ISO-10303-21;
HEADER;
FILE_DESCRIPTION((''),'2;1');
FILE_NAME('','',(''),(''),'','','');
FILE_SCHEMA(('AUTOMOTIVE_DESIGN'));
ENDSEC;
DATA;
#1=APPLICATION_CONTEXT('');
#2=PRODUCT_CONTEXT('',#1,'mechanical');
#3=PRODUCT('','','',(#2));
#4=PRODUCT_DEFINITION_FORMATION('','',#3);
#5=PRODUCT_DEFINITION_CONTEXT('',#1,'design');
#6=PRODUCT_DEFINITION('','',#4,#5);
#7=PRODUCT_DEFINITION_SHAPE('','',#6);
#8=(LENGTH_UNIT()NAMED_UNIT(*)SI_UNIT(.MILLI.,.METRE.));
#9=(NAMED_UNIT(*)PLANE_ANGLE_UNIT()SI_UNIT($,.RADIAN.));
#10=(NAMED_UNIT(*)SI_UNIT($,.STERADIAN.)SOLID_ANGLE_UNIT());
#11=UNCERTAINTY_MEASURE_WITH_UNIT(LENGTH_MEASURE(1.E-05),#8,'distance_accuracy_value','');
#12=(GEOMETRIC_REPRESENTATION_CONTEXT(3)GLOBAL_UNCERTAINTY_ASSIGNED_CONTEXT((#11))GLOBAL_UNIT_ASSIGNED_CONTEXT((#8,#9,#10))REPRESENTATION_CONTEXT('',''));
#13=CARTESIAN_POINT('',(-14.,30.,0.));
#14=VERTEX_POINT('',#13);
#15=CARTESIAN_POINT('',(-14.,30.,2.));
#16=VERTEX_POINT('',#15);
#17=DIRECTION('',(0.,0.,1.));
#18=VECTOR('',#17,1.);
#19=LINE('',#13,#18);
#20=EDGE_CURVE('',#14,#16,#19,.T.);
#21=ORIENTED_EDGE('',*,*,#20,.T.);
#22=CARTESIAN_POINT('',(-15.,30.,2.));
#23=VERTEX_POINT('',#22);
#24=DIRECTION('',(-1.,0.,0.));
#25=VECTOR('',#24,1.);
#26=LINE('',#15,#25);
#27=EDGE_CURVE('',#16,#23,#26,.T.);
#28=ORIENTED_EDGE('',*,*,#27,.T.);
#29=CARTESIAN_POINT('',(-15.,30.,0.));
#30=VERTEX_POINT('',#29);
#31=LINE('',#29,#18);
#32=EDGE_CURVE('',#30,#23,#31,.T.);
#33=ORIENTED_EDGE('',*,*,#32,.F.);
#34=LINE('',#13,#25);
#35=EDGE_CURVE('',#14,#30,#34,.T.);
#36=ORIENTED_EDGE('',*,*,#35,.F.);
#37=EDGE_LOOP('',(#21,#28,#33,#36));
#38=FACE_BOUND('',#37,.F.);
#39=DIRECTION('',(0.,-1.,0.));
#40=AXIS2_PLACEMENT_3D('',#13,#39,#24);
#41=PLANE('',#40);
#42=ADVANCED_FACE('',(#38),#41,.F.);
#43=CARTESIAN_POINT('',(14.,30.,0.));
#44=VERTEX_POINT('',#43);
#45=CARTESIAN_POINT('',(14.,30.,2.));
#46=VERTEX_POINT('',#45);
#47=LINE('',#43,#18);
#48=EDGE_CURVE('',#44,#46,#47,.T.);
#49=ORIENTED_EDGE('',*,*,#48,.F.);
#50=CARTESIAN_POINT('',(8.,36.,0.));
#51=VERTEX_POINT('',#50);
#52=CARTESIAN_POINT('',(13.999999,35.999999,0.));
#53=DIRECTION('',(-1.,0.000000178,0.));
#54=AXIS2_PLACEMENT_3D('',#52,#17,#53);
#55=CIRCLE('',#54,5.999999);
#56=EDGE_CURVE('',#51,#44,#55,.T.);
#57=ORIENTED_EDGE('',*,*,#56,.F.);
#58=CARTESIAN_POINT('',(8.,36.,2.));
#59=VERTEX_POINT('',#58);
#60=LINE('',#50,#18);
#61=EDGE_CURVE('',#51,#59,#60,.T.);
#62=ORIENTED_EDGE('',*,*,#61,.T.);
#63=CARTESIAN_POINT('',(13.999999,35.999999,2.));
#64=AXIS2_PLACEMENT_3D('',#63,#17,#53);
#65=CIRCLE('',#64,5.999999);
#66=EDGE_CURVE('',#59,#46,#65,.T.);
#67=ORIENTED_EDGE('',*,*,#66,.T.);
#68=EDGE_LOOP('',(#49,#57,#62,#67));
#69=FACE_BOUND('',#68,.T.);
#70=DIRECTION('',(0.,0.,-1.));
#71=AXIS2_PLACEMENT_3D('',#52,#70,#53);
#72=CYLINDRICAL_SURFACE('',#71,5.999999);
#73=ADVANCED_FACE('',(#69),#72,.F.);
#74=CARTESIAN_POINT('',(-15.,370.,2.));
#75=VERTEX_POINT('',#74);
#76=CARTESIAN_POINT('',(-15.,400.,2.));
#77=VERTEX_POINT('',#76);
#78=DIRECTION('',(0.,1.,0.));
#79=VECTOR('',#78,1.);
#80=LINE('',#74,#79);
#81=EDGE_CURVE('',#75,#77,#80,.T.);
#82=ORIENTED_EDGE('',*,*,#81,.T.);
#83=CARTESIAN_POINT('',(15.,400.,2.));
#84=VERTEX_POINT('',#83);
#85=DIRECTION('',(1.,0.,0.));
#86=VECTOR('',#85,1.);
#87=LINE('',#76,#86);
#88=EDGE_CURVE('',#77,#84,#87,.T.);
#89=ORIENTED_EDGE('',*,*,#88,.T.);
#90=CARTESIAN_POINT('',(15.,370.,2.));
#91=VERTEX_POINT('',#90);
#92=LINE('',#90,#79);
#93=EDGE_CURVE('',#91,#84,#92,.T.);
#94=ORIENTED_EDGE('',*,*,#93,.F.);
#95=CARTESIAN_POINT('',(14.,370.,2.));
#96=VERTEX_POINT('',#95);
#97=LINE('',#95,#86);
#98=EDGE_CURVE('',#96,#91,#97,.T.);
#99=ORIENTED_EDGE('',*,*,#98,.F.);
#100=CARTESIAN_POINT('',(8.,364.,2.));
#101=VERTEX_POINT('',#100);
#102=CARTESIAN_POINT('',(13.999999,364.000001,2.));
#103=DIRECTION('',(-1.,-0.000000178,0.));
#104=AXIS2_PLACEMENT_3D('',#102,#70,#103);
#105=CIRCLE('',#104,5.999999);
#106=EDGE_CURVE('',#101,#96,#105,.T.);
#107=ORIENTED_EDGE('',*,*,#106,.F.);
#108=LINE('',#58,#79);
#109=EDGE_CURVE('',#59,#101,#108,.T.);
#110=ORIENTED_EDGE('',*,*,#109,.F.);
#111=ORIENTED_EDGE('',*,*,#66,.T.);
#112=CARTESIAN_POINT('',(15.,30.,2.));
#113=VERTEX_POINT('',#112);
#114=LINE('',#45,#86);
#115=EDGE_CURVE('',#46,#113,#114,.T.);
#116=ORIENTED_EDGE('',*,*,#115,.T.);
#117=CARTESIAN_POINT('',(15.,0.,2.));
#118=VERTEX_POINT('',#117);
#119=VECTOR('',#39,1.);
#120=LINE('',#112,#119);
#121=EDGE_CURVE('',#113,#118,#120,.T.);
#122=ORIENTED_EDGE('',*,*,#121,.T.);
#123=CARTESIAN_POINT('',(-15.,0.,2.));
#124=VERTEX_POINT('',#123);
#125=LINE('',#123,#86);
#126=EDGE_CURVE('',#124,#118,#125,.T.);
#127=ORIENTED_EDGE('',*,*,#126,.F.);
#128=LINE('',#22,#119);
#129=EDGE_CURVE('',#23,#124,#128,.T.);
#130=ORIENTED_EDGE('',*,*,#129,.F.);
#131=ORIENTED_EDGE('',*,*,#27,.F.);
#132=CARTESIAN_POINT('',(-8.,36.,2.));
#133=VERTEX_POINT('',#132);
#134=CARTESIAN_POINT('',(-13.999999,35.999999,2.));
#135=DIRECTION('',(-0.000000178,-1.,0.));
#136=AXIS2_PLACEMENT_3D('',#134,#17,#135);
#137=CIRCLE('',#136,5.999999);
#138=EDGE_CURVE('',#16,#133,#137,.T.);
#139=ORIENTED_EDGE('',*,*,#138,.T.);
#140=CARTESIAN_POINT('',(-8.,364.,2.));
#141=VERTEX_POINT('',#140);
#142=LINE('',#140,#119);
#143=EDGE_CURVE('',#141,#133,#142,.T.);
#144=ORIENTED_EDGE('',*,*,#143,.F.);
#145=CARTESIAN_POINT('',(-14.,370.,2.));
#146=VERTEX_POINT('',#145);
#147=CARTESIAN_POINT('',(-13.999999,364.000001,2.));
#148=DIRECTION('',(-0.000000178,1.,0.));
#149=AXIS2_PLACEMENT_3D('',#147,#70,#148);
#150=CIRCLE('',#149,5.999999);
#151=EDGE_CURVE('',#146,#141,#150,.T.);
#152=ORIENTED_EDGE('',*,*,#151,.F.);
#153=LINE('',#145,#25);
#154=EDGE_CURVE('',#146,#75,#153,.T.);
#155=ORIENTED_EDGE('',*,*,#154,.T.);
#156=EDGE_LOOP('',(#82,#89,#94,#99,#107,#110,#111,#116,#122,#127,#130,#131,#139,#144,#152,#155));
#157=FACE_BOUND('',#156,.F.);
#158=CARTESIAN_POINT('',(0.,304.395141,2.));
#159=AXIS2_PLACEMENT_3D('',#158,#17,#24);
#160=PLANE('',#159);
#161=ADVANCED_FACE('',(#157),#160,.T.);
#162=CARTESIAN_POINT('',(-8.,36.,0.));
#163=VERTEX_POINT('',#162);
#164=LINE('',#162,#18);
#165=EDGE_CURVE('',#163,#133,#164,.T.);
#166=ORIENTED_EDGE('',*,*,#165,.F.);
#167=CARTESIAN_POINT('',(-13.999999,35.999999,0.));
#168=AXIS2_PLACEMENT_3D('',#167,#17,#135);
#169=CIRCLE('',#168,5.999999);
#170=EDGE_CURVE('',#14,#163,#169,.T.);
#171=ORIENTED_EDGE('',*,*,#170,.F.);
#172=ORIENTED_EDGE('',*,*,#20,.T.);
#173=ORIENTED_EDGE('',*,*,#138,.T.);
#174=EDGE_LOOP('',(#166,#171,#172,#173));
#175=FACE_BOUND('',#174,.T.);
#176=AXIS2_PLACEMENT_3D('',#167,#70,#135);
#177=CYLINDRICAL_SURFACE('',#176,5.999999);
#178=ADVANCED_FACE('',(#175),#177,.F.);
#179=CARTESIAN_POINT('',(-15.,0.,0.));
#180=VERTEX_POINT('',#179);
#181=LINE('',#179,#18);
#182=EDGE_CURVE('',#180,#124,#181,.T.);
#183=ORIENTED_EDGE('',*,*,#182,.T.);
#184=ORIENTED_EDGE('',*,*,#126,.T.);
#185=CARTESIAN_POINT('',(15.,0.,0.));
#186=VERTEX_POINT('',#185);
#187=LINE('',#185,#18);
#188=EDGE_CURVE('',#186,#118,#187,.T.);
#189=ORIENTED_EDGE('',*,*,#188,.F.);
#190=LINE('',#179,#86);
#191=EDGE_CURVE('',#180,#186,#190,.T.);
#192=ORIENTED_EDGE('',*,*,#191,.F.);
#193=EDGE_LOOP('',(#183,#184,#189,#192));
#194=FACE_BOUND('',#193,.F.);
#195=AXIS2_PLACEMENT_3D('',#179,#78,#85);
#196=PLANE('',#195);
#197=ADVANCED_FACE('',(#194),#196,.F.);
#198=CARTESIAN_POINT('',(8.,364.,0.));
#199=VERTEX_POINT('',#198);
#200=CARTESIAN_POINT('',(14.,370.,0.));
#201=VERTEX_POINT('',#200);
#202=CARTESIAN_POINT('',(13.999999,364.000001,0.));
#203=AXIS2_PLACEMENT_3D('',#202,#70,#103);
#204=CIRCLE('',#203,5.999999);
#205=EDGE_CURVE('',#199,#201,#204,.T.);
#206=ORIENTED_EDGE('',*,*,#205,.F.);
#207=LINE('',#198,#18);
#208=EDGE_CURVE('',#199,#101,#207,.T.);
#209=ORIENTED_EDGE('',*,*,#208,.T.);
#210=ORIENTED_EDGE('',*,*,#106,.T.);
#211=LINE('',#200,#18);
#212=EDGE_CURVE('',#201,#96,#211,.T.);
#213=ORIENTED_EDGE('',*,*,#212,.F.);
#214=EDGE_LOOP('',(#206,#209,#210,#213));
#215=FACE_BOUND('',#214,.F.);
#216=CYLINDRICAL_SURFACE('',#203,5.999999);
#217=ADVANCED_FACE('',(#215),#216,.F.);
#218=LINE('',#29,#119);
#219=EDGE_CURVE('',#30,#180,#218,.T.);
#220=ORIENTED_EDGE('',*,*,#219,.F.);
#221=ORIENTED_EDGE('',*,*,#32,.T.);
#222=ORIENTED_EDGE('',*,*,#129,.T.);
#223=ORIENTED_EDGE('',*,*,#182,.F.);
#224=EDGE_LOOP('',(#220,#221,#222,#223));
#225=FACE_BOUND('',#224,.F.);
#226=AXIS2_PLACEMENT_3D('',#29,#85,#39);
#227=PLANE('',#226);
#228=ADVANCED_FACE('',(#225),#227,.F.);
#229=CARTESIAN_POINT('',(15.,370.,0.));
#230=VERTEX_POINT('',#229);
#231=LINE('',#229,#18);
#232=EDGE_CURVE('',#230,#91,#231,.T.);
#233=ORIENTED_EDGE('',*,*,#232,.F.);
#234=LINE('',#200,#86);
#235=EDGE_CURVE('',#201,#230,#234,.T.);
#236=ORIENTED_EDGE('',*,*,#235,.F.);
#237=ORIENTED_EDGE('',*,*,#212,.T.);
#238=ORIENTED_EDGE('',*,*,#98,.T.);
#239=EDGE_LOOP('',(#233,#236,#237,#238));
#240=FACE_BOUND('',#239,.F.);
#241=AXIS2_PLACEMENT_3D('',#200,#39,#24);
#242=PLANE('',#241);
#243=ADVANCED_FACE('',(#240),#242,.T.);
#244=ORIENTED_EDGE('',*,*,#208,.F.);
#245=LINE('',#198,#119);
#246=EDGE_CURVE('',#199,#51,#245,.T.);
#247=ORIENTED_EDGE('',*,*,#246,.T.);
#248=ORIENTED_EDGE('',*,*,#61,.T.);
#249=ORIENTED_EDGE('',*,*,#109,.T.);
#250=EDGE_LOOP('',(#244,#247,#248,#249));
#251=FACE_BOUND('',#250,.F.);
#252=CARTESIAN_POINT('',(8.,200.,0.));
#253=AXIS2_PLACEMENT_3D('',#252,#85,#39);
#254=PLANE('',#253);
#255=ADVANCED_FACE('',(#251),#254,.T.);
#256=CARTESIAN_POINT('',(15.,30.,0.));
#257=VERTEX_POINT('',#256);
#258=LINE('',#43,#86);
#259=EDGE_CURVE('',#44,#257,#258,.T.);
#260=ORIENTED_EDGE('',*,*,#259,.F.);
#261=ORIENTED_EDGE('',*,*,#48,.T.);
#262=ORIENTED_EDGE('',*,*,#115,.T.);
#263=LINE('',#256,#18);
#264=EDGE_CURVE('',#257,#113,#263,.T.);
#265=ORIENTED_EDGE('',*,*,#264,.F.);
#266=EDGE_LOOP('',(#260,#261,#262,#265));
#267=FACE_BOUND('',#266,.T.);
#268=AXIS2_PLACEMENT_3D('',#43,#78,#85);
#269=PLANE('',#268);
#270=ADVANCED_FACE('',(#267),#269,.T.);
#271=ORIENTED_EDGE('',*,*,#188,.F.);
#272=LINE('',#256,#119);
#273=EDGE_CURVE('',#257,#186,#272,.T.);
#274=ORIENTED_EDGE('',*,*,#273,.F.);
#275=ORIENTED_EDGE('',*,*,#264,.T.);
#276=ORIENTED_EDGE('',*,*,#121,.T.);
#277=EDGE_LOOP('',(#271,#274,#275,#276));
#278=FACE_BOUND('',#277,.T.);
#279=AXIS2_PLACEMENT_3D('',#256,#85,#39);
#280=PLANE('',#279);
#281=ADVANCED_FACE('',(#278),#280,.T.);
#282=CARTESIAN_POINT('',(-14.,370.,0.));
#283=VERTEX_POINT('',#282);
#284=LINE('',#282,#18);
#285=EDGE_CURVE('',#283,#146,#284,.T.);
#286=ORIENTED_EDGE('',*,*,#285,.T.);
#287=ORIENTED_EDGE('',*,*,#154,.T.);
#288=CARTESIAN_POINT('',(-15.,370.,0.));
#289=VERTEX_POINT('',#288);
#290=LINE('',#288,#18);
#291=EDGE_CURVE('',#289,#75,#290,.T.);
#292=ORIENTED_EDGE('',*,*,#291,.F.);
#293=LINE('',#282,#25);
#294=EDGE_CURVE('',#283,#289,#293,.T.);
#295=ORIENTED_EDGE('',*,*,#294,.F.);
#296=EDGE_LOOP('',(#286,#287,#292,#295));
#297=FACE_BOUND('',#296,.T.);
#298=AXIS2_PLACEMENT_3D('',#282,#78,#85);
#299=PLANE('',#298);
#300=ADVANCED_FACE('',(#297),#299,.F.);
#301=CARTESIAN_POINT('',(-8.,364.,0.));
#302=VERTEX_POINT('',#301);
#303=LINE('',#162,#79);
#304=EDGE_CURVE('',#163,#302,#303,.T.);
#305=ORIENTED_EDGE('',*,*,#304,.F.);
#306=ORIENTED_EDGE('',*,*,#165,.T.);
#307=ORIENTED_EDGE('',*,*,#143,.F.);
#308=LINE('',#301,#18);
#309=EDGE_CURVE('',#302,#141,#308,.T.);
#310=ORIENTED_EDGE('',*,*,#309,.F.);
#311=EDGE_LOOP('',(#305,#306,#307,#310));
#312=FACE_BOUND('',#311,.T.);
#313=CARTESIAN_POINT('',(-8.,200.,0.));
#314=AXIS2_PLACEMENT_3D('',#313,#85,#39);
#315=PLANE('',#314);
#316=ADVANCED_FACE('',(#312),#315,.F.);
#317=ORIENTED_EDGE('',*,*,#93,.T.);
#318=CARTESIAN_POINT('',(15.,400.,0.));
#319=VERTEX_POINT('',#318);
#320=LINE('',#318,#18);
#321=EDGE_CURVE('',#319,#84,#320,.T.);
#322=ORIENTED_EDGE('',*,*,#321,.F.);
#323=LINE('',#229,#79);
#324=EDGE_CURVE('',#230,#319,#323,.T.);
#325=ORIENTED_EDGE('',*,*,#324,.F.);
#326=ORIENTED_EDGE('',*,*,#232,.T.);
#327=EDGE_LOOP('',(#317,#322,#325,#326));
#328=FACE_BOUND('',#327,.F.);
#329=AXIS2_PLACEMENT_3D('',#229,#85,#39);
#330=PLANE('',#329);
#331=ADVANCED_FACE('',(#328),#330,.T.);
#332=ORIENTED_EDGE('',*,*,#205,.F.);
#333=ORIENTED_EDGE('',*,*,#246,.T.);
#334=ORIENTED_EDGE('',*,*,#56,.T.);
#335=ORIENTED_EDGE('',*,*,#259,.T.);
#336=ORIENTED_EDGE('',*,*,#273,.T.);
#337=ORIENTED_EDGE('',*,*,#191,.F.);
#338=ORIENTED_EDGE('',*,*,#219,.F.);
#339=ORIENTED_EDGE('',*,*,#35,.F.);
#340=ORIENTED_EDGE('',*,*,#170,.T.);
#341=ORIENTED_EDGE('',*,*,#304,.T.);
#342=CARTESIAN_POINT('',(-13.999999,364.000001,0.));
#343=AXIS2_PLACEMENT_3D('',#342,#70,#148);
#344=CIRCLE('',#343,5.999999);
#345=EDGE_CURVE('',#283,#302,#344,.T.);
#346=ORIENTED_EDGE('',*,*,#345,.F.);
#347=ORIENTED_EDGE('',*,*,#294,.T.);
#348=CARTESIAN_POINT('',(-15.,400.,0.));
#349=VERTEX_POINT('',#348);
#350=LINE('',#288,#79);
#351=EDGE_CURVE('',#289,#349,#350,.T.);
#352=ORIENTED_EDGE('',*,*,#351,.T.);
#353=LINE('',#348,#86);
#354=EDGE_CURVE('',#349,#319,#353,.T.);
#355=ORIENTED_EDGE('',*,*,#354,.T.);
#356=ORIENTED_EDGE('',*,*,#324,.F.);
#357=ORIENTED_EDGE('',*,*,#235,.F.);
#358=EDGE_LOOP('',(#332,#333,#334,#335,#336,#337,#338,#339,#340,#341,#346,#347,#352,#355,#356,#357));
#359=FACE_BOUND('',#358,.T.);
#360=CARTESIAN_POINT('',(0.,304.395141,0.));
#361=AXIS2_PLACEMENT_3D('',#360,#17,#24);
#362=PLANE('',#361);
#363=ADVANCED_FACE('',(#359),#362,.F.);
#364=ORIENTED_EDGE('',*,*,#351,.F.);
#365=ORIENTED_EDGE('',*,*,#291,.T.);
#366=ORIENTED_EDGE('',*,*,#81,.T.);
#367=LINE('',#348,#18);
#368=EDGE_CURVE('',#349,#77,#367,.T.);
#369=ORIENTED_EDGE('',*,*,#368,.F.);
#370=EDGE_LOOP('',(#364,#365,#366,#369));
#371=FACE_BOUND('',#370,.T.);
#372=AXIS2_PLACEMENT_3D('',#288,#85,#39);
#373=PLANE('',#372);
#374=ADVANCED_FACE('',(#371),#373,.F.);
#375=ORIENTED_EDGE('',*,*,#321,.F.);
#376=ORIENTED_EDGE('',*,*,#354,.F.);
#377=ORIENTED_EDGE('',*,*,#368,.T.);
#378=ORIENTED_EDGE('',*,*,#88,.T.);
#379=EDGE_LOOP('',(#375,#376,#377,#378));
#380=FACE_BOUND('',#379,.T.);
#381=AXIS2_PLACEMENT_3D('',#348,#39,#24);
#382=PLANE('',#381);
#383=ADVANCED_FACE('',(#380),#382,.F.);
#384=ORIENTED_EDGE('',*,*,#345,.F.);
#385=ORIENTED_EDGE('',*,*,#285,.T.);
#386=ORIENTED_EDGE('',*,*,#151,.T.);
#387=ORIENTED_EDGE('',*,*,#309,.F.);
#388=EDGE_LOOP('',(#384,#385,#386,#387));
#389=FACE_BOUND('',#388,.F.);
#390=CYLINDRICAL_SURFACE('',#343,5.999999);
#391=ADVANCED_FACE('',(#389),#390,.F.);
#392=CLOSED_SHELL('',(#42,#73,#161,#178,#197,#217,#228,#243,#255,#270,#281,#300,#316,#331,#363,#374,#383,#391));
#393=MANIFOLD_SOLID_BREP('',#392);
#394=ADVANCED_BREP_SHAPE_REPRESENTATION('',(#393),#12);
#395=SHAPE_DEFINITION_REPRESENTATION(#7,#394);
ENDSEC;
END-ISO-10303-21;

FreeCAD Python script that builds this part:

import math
import FreeCAD as App
import Part
import Sketcher
from FreeCAD import Vector

doc = App.newDocument("Part")
body = doc.addObject("PartDesign::Body", "Body")

# Sketch on XY plane
sketch1 = doc.addObject("Sketcher::SketchObject", "Sketch")
body.addObject(sketch1)
sketch1.AttachmentSupport = (doc.XY_Plane, [""])
sketch1.MapMode = "FlatFace"
sketch1.addGeometry([
    Part.LineSegment(Vector(15, 0, 0), Vector(15, 30, 0)),  # 0
    Part.LineSegment(Vector(15, 30, 0), Vector(14, 30, 0)),  # 1
    Part.ArcOfCircle(Part.Circle(Vector(14, 36, 0), Vector(0, 0, 1), 6), math.radians(180), math.radians(270)),  # 2
    Part.LineSegment(Vector(8, 36, 0), Vector(8, 200, 0)),  # 3
    Part.LineSegment(Vector(8, 200, 0), Vector(-8, 200, 0)),  # 4
    Part.LineSegment(Vector(-8, 200, 0), Vector(-8, 36, 0)),  # 5
    Part.ArcOfCircle(Part.Circle(Vector(-14, 36, 0), Vector(0, 0, 1), 6), math.radians(-90), math.radians(0)),  # 6
    Part.LineSegment(Vector(-14, 30, 0), Vector(-15, 30, 0)),  # 7
    Part.LineSegment(Vector(-15, 30, 0), Vector(-15, 0, 0)),  # 8
    Part.LineSegment(Vector(-15, 0, 0), Vector(15, 0, 0)),  # 9
], False)
sketch1.addConstraint([
    Sketcher.Constraint("Coincident", 0, 2, 1, 1),
    Sketcher.Constraint("Tangent", 1, 2, 2, 2),
    Sketcher.Constraint("Tangent", 2, 1, 3, 1),
    Sketcher.Constraint("Coincident", 3, 2, 4, 1),
    Sketcher.Constraint("Coincident", 4, 2, 5, 1),
    Sketcher.Constraint("Tangent", 5, 2, 6, 2),
    Sketcher.Constraint("Tangent", 6, 1, 7, 1),
    Sketcher.Constraint("Coincident", 7, 2, 8, 1),
    Sketcher.Constraint("Coincident", 8, 2, 9, 1),
    Sketcher.Constraint("Coincident", 9, 2, 0, 1),
    Sketcher.Constraint("Vertical", 0),
    Sketcher.Constraint("Horizontal", 1),
    Sketcher.Constraint("Vertical", 3),
    Sketcher.Constraint("Horizontal", 4),
    Sketcher.Constraint("Vertical", 5),
    Sketcher.Constraint("Horizontal", 7),
    Sketcher.Constraint("Vertical", 8),
    Sketcher.Constraint("Horizontal", 9),
    Sketcher.Constraint("Equal", 2, 6),
    Sketcher.Constraint("Symmetric", 8, 2, 9, 2, -1, 1),
    Sketcher.Constraint("Symmetric", 2, 3, 6, 3, -2),
    Sketcher.Constraint("Equal", 9, 0),
    Sketcher.Constraint("Radius", 2, 5.999999),
    Sketcher.Constraint("DistanceX", 1, 2, 1, 1, 1.0),
    Sketcher.Constraint("DistanceX", 4, 2, 4, 1, 16.0),
    Sketcher.Constraint("DistanceY", 3, 1, 3, 2, 164.0),
])
pad1 = doc.addObject("PartDesign::Pad", "Pad")
body.addObject(pad1)
pad1.Profile = sketch1
pad1.Length = 2
doc.recompute()

datumplane = doc.addObject("PartDesign::Plane", "DatumPlane")
body.addObject(datumplane)
datumplane.AttachmentSupport = (doc.XZ_Plane, [""])
datumplane.MapMode = "FlatFace"
datumplane.AttachmentOffset = App.Placement(Vector(0, 0, -200), App.Rotation())
mirrored = doc.addObject("PartDesign::Mirrored", "Mirrored")
body.addObject(mirrored)
mirrored.Originals = [pad1]
mirrored.MirrorPlane = (datumplane, [""])
body.Tip = mirrored

doc.recompute()
